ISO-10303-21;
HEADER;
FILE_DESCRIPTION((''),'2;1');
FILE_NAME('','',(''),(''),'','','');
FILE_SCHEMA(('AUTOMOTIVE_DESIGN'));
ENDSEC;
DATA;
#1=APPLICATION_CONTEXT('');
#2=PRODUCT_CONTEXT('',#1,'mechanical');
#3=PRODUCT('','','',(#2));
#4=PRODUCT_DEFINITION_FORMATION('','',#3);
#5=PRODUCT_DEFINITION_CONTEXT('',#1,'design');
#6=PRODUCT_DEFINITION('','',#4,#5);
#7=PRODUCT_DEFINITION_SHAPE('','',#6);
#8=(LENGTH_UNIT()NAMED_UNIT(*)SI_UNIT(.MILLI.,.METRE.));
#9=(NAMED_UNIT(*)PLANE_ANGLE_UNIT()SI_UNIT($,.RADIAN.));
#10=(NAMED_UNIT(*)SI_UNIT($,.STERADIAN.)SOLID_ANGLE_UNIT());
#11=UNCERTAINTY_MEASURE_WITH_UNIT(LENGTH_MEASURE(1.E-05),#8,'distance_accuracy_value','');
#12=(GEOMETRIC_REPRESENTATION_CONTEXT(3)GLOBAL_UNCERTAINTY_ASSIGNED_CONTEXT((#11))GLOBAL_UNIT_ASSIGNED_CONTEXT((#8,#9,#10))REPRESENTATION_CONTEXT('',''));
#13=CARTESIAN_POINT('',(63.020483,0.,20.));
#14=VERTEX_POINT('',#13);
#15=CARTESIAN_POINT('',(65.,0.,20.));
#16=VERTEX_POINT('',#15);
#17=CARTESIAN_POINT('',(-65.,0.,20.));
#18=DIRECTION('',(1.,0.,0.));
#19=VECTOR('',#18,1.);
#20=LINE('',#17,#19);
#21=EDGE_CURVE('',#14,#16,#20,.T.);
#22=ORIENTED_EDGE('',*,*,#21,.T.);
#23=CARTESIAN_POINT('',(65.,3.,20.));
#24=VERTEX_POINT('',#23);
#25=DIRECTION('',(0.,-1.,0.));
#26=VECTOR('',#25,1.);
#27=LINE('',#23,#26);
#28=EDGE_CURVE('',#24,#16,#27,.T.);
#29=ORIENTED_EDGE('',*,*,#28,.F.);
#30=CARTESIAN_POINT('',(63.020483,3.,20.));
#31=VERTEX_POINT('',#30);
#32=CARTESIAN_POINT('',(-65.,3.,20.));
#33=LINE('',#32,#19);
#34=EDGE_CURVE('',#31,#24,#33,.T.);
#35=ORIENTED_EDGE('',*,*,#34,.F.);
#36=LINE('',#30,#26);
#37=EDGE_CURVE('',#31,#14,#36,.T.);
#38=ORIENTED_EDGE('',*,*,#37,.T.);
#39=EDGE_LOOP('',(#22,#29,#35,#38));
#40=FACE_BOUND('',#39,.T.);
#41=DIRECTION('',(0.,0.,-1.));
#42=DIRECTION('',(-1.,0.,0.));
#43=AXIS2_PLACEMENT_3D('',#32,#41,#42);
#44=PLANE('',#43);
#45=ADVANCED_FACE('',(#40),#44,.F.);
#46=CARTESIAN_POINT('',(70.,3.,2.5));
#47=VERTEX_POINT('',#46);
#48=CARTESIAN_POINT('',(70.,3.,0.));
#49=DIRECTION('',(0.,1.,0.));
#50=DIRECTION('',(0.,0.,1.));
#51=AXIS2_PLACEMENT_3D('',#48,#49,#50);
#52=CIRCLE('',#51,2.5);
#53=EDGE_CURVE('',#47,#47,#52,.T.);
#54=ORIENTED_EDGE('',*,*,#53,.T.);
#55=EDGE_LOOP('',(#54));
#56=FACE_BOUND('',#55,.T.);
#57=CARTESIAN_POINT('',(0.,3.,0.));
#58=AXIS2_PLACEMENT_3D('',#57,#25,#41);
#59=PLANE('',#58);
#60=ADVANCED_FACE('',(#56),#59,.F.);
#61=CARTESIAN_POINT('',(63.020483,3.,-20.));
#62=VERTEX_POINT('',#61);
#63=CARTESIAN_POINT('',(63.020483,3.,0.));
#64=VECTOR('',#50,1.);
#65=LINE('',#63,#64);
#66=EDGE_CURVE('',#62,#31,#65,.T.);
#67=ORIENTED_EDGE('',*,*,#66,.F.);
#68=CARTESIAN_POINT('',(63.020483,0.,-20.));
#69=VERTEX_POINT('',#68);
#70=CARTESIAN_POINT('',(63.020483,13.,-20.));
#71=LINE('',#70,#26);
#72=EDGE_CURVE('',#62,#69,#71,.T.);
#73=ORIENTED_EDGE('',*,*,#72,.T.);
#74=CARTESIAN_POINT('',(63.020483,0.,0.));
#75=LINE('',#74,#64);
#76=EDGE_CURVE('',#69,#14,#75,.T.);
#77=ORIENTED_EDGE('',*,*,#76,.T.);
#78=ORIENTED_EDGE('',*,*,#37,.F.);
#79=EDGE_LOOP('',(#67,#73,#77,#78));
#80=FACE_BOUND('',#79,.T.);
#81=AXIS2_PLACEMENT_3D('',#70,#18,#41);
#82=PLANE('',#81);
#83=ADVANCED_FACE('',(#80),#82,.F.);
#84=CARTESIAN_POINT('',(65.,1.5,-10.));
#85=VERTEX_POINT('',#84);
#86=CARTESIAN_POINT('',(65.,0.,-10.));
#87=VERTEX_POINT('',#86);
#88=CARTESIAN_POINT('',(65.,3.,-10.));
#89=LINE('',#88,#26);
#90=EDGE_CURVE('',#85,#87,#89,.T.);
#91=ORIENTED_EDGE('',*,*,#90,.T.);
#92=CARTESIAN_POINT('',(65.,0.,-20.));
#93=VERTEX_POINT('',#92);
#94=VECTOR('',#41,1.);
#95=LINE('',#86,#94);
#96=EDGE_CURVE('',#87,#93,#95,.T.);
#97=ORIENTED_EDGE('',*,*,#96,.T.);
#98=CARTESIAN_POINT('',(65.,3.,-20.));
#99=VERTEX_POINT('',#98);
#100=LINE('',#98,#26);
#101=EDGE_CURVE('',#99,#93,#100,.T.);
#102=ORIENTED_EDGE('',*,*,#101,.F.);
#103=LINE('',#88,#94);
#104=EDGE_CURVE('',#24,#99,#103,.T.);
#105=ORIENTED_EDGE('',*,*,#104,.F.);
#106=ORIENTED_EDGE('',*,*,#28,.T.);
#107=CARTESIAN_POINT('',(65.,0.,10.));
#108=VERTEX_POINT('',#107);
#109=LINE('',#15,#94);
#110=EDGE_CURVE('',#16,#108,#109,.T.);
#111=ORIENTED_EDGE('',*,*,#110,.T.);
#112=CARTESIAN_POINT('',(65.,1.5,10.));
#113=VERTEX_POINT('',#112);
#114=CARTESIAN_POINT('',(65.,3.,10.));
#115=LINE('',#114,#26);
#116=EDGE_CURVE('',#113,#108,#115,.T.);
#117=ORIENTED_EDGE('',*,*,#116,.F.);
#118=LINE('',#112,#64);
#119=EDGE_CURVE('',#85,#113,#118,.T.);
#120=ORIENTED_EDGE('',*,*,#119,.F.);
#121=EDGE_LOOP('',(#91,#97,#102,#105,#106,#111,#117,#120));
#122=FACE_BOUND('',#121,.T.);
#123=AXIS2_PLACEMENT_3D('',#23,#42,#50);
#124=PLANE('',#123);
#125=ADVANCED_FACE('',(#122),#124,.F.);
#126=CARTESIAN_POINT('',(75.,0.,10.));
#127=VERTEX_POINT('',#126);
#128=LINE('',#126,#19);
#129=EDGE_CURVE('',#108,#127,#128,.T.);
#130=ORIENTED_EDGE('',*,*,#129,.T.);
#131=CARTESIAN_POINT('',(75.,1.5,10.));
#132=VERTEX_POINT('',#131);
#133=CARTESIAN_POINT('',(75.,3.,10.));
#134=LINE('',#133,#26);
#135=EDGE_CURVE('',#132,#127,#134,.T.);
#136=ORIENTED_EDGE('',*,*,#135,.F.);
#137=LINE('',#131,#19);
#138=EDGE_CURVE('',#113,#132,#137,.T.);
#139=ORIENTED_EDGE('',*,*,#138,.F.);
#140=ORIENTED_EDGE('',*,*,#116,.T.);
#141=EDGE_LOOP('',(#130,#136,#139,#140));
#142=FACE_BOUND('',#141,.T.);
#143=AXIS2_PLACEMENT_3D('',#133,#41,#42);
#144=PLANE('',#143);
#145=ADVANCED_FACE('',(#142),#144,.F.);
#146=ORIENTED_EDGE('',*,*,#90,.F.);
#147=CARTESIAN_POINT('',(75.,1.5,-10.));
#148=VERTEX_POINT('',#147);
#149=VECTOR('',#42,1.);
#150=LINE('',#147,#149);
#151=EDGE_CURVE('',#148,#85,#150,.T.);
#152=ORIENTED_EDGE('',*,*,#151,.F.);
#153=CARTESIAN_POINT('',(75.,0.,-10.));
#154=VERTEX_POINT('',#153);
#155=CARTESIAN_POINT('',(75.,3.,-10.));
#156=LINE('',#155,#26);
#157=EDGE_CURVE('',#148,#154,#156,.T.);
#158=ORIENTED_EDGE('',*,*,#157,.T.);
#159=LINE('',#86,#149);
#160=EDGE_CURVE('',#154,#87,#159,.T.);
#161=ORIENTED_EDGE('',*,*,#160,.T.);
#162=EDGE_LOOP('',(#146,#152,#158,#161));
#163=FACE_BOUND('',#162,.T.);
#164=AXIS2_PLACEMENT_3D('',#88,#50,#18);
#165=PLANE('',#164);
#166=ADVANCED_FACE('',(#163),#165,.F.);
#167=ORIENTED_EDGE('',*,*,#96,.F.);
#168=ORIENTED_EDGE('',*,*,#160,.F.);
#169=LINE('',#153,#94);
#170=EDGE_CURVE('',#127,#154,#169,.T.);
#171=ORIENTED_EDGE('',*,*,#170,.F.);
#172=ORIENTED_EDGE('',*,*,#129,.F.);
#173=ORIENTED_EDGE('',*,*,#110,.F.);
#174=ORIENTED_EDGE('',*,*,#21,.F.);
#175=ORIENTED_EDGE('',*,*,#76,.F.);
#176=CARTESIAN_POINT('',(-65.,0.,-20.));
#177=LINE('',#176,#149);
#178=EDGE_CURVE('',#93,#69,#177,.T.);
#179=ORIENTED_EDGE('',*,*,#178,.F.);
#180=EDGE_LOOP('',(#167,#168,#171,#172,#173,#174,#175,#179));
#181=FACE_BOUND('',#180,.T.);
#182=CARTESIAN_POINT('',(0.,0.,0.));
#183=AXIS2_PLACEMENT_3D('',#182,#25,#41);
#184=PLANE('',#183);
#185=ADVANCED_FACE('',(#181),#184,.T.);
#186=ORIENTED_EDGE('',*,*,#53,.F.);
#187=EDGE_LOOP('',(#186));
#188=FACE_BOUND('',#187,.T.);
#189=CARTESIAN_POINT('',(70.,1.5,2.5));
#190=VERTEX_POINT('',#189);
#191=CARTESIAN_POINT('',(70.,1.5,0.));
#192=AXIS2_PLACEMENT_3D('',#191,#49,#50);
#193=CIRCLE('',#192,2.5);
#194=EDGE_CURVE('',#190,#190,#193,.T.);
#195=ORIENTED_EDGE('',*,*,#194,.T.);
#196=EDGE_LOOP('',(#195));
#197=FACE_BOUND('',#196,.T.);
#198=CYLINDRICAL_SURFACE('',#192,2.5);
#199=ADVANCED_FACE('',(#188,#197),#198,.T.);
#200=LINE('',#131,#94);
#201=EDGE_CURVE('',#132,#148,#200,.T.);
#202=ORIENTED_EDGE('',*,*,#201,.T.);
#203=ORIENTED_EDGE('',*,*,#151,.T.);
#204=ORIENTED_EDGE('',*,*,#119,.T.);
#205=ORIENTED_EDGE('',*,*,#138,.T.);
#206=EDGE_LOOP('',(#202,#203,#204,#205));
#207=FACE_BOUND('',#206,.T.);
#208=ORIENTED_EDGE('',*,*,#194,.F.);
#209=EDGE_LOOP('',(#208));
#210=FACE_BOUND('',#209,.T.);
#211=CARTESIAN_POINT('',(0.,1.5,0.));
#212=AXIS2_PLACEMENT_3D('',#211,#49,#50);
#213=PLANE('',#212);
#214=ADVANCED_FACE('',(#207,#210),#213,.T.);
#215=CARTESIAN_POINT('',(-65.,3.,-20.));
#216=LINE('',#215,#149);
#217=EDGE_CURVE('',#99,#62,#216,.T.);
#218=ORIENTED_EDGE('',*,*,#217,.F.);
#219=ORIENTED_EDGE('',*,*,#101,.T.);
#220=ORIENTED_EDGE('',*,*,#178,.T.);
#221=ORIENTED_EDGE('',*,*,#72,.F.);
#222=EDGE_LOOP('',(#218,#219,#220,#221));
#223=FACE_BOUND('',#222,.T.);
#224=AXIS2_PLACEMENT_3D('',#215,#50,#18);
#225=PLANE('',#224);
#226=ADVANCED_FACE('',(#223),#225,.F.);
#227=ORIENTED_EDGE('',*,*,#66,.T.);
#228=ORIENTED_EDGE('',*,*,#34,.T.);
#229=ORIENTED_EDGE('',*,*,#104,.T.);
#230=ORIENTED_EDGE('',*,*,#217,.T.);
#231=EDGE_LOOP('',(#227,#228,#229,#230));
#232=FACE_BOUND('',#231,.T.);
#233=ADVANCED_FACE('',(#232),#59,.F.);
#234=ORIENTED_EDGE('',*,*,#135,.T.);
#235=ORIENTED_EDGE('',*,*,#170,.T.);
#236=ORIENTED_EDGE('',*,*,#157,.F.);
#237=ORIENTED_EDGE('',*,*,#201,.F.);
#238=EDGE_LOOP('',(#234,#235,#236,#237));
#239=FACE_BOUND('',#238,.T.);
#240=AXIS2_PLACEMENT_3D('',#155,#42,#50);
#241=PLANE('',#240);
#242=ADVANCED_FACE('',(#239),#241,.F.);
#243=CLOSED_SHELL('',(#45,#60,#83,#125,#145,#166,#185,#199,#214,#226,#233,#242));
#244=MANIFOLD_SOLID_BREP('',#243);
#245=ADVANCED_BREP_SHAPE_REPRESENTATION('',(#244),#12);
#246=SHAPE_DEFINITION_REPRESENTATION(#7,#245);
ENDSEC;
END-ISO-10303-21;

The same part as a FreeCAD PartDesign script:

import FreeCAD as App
import Part
import Sketcher

V = App.Vector
Q = App.Units.Quantity


def edges_at(feature, points):
    """Names of the edges that pass closest to the given points."""
    edges = feature.Shape.Edges
    near = lambda p: min(range(len(edges)), key=lambda i: edges[i].distToShape(Part.Vertex(*p))[0])
    return sorted({f"Edge{near(p) + 1}" for p in points})

doc = App.newDocument("Part")
body = doc.addObject("PartDesign::Body", "Body")

# Sketch on XZ plane
sketch1 = body.newObject("Sketcher::SketchObject", "Sketch")
sketch1.AttachmentSupport = (doc.getObject("XZ_Plane"), [""])
sketch1.MapMode = "FlatFace"
sketch1.addGeometry(Part.LineSegment(V(-65, 20, 0), V(65, 20, 0)), False)
sketch1.addGeometry(Part.LineSegment(V(65, 20, 0), V(65, 10, 0)), False)
sketch1.addGeometry(Part.LineSegment(V(65, 10, 0), V(75, 10, 0)), False)
sketch1.addGeometry(Part.LineSegment(V(75, 10, 0), V(75, -10, 0)), False)
sketch1.addGeometry(Part.LineSegment(V(75, -10, 0), V(65, -10, 0)), False)
sketch1.addGeometry(Part.LineSegment(V(65, -10, 0), V(65, -20, 0)), False)
sketch1.addGeometry(Part.LineSegment(V(65, -20, 0), V(-65, -20, 0)), False)
sketch1.addGeometry(Part.LineSegment(V(-65, -20, 0), V(-65, 20, 0)), False)
sketch1.addGeometry(Part.LineSegment(V(40, 12.5, 0), V(10, 12.5, 0)), False)
sketch1.addGeometry(Part.LineSegment(V(10, 12.5, 0), V(10, 9.5, 0)), False)
sketch1.addGeometry(Part.LineSegment(V(10, 9.5, 0), V(40, 9.5, 0)), False)
sketch1.addGeometry(Part.LineSegment(V(40, 9.5, 0), V(40, 12.5, 0)), False)
sketch1.addGeometry(Part.Circle(V(-50.1, 0, 0), V(0, 0, 1), 11), False)
sketch1.addGeometry(Part.Circle(V(-28.6, 0, 0), V(0, 0, 1), 2), False)
sketch1.addGeometry(Part.Circle(V(-13.6, 0, 0), V(0, 0, 1), 2), False)
sketch1.addGeometry(Part.Circle(V(50, 0, 0), V(0, 0, 1), 2), False)
sketch1.addGeometry(Part.LineSegment(V(40, -9.5, 0), V(10, -9.5, 0)), False)
sketch1.addGeometry(Part.LineSegment(V(10, -9.5, 0), V(10, -12.5, 0)), False)
sketch1.addGeometry(Part.LineSegment(V(10, -12.5, 0), V(40, -12.5, 0)), False)
sketch1.addGeometry(Part.LineSegment(V(40, -12.5, 0), V(40, -9.5, 0)), False)
sketch1.addConstraint(Sketcher.Constraint("Coincident", 0, 2, 1, 1))
sketch1.addConstraint(Sketcher.Constraint("Coincident", 1, 2, 2, 1))
sketch1.addConstraint(Sketcher.Constraint("Coincident", 2, 2, 3, 1))
sketch1.addConstraint(Sketcher.Constraint("Coincident", 3, 2, 4, 1))
sketch1.addConstraint(Sketcher.Constraint("Coincident", 4, 2, 5, 1))
sketch1.addConstraint(Sketcher.Constraint("Coincident", 5, 2, 6, 1))
sketch1.addConstraint(Sketcher.Constraint("Coincident", 6, 2, 7, 1))
sketch1.addConstraint(Sketcher.Constraint("Coincident", 7, 2, 0, 1))
sketch1.addConstraint(Sketcher.Constraint("Coincident", 8, 2, 9, 1))
sketch1.addConstraint(Sketcher.Constraint("Coincident", 9, 2, 10, 1))
sketch1.addConstraint(Sketcher.Constraint("Coincident", 10, 2, 11, 1))
sketch1.addConstraint(Sketcher.Constraint("Coincident", 11, 2, 8, 1))
sketch1.addConstraint(Sketcher.Constraint("Coincident", 16, 2, 17, 1))
sketch1.addConstraint(Sketcher.Constraint("Coincident", 17, 2, 18, 1))
sketch1.addConstraint(Sketcher.Constraint("Coincident", 18, 2, 19, 1))
sketch1.addConstraint(Sketcher.Constraint("Coincident", 19, 2, 16, 1))
sketch1.addConstraint(Sketcher.Constraint("Horizontal", 0))
sketch1.addConstraint(Sketcher.Constraint("Vertical", 1))
sketch1.addConstraint(Sketcher.Constraint("Horizontal", 2))
sketch1.addConstraint(Sketcher.Constraint("Vertical", 3))
sketch1.addConstraint(Sketcher.Constraint("Horizontal", 4))
sketch1.addConstraint(Sketcher.Constraint("Vertical", 5))
sketch1.addConstraint(Sketcher.Constraint("Horizontal", 6))
sketch1.addConstraint(Sketcher.Constraint("Vertical", 7))
sketch1.addConstraint(Sketcher.Constraint("Horizontal", 8))
sketch1.addConstraint(Sketcher.Constraint("Vertical", 9))
sketch1.addConstraint(Sketcher.Constraint("Horizontal", 10))
sketch1.addConstraint(Sketcher.Constraint("Vertical", 11))
sketch1.addConstraint(Sketcher.Constraint("Horizontal", 16))
sketch1.addConstraint(Sketcher.Constraint("Vertical", 17))
sketch1.addConstraint(Sketcher.Constraint("Horizontal", 18))
sketch1.addConstraint(Sketcher.Constraint("Vertical", 19))
sketch1.addConstraint(Sketcher.Constraint("Equal", 13, 14))
sketch1.addConstraint(Sketcher.Constraint("Equal", 14, 15))
sketch1.addConstraint(Sketcher.Constraint("Symmetric", 0, 2, 6, 2, -1, 1))
sketch1.addConstraint(Sketcher.Constraint("Symmetric", 1, 2, 4, 2, -1))
sketch1.addConstraint(Sketcher.Constraint("Symmetric", 9, 2, 16, 2, -1))
sketch1.addConstraint(Sketcher.Constraint("Symmetric", 11, 2, 18, 2, -1))
sketch1.addConstraint(Sketcher.Constraint("PointOnObject", 12, 3, -1))
sketch1.addConstraint(Sketcher.Constraint("PointOnObject", 13, 3, -1))
sketch1.addConstraint(Sketcher.Constraint("PointOnObject", 14, 3, -1))
sketch1.addConstraint(Sketcher.Constraint("PointOnObject", 15, 3, -1))
sketch1.addConstraint(Sketcher.Constraint("Equal", 4, 1))
sketch1.addConstraint(Sketcher.Constraint("Diameter", 12, Q("22 mm")))
sketch1.addConstraint(Sketcher.Constraint("Diameter", 13, Q("4 mm")))
sketch1.addConstraint(Sketcher.Constraint("DistanceX", 0, 1, 0, 2, Q("130 mm")))
sketch1.addConstraint(Sketcher.Constraint("DistanceX", 2, 1, 2, 2, Q("10 mm")))
sketch1.addConstraint(Sketcher.Constraint("DistanceX", 8, 2, 8, 1, Q("30 mm")))
sketch1.addConstraint(Sketcher.Constraint("DistanceY", 3, 2, 3, 1, Q("20 mm")))
sketch1.addConstraint(Sketcher.Constraint("DistanceY", 9, 2, 9, 1, Q("3 mm")))
sketch1.addConstraint(Sketcher.Constraint("DistanceX", -1, 1, 15, 3, Q("50 mm")))
sketch1.addConstraint(Sketcher.Constraint("DistanceX", -1, 1, 8, 2, Q("10 mm")))
sketch1.addConstraint(Sketcher.Constraint("DistanceX", 13, 3, 14, 3, Q("15 mm")))
sketch1.addConstraint(Sketcher.Constraint("DistanceY", 16, 2, 9, 2, Q("19 mm")))
sketch1.addConstraint(Sketcher.Constraint("DistanceX", 12, 3, -1, 1, Q("50.129943 mm")))
sketch1.addConstraint(Sketcher.Constraint("DistanceX", 13, 3, -1, 1, Q("28.595128 mm")))
pad1 = body.newObject("PartDesign::Pad", "Pad")
pad1.Profile = sketch1
pad1.Length = 3
pad1.Reversed = True

# Sketch on XZ plane
sketch2 = body.newObject("Sketcher::SketchObject", "Sketch001")
sketch2.AttachmentSupport = (doc.getObject("XZ_Plane"), [""])
sketch2.MapMode = "FlatFace"
sketch2.AttachmentOffset = App.Placement(V(0, 0, -3), App.Rotation())
sketch2.addGeometry(Part.Circle(V(-50, 0, 0), V(0, 0, 1), 13), False)
sketch2.addGeometry(Part.Circle(V(-50, 0, 0), V(0, 0, 1), 11), False)
sketch2.addConstraint(Sketcher.Constraint("Coincident", 1, 3, 0, 3))
sketch2.addConstraint(Sketcher.Constraint("PointOnObject", 0, 3, -1))
sketch2.addConstraint(Sketcher.Constraint("Diameter", 0, Q("26 mm")))
sketch2.addConstraint(Sketcher.Constraint("Diameter", 1, Q("22 mm")))
sketch2.addConstraint(Sketcher.Constraint("DistanceX", 0, 3, -1, 1, Q("50.129943 mm")))
pad2 = body.newObject("PartDesign::Pad", "Pad001")
pad2.Profile = sketch2
pad2.Length = 4
pad2.Reversed = True

# Sketch on XZ plane
sketch3 = body.newObject("Sketcher::SketchObject", "Sketch002")
sketch3.AttachmentSupport = (doc.getObject("XZ_Plane"), [""])
sketch3.MapMode = "FlatFace"
sketch3.AttachmentOffset = App.Placement(V(0, 0, -7), App.Rotation())
sketch3.addGeometry(Part.Circle(V(-50, 0, 0), V(0, 0, 1), 13), False)
sketch3.addGeometry(Part.Circle(V(-50, 0, 0), V(0, 0, 1), 9), False)
sketch3.addConstraint(Sketcher.Constraint("Coincident", 1, 3, 0, 3))
sketch3.addConstraint(Sketcher.Constraint("PointOnObject", 0, 3, -1))
sketch3.addConstraint(Sketcher.Constraint("Diameter", 0, Q("26 mm")))
sketch3.addConstraint(Sketcher.Constraint("Diameter", 1, Q("18 mm")))
sketch3.addConstraint(Sketcher.Constraint("DistanceX", 0, 3, -1, 1, Q("50.129943 mm")))
pad3 = body.newObject("PartDesign::Pad", "Pad002")
pad3.Profile = sketch3
pad3.Length = 2
pad3.Reversed = True
doc.recompute()

chamfer = body.newObject("PartDesign::Chamfer", "Chamfer")
chamfer.Base = (pad3, edges_at(pad3, [(-50.13, 9, 13)]))
chamfer.Size = 2
doc.recompute()

chamfer2 = body.newObject("PartDesign::Chamfer", "Chamfer001")
chamfer2.Base = (chamfer, edges_at(chamfer, [(-65, 1.5, 20), (-65, 1.5, -20)]))
chamfer2.Size = 10

# Sketch on XZ plane
sketch4 = body.newObject("Sketcher::SketchObject", "Sketch003")
sketch4.AttachmentSupport = (doc.getObject("XZ_Plane"), [""])
sketch4.MapMode = "FlatFace"
sketch4.AttachmentOffset = App.Placement(V(0, 0, -3), App.Rotation())
sketch4.addGeometry(Part.LineSegment(V(65, -10, 0), V(65, 10, 0)), False)
sketch4.addGeometry(Part.LineSegment(V(65, 10, 0), V(75, 10, 0)), False)
sketch4.addGeometry(Part.LineSegment(V(75, 10, 0), V(75, -10, 0)), False)
sketch4.addGeometry(Part.LineSegment(V(75, -10, 0), V(65, -10, 0)), False)
sketch4.addGeometry(Part.Circle(V(70, 0, 0), V(0, 0, 1), 2.5), False)
sketch4.addConstraint(Sketcher.Constraint("Coincident", 0, 2, 1, 1))
sketch4.addConstraint(Sketcher.Constraint("Coincident", 1, 2, 2, 1))
sketch4.addConstraint(Sketcher.Constraint("Coincident", 2, 2, 3, 1))
sketch4.addConstraint(Sketcher.Constraint("Coincident", 3, 2, 0, 1))
sketch4.addConstraint(Sketcher.Constraint("Vertical", 0))
sketch4.addConstraint(Sketcher.Constraint("Horizontal", 1))
sketch4.addConstraint(Sketcher.Constraint("Vertical", 2))
sketch4.addConstraint(Sketcher.Constraint("Horizontal", 3))
sketch4.addConstraint(Sketcher.Constraint("PointOnObject", 4, 3, -1))
sketch4.addConstraint(Sketcher.Constraint("Diameter", 4, Q("5 mm")))
sketch4.addConstraint(Sketcher.Constraint("DistanceX", 1, 1, 1, 2, Q("10 mm")))
sketch4.addConstraint(Sketcher.Constraint("DistanceY", 0, 1, 0, 2, Q("20 mm")))
sketch4.addConstraint(Sketcher.Constraint("DistanceX", -1, 1, 4, 3, Q("70 mm")))
sketch4.addConstraint(Sketcher.Constraint("DistanceX", -1, 1, 0, 2, Q("65 mm")))
sketch4.addConstraint(Sketcher.Constraint("DistanceY", -1, 1, 0, 2, Q("10 mm")))
pocket1 = body.newObject("PartDesign::Pocket", "Pocket")
pocket1.Profile = sketch4
pocket1.Length = 1.5
pocket1.Reversed = True

# Sketch on XZ plane
sketch5 = body.newObject("Sketcher::SketchObject", "Sketch004")
sketch5.AttachmentSupport = (doc.getObject("XZ_Plane"), [""])
sketch5.MapMode = "FlatFace"
sketch5.AttachmentOffset = App.Placement(V(0, 0, -3), App.Rotation())
sketch5.addGeometry(Part.LineSegment(V(-81, -36, 0), V(-81, 36, 0)), False)
sketch5.addGeometry(Part.LineSegment(V(-81, 36, 0), V(91, 36, 0)), False)
sketch5.addGeometry(Part.LineSegment(V(91, 36, 0), V(91, -36, 0)), False)
sketch5.addGeometry(Part.LineSegment(V(91, -36, 0), V(-81, -36, 0)), False)
sketch5.addGeometry(Part.LineSegment(V(76, 22, 0), V(63, 22, 0)), False)
sketch5.addGeometry(Part.LineSegment(V(63, 22, 0), V(63, -20, 0)), False)
sketch5.addGeometry(Part.LineSegment(V(63, -20, 0), V(76, -20, 0)), False)
sketch5.addGeometry(Part.LineSegment(V(76, -20, 0), V(76, 22, 0)), False)
sketch5.addConstraint(Sketcher.Constraint("Coincident", 0, 2, 1, 1))
sketch5.addConstraint(Sketcher.Constraint("Coincident", 1, 2, 2, 1))
sketch5.addConstraint(Sketcher.Constraint("Coincident", 2, 2, 3, 1))
sketch5.addConstraint(Sketcher.Constraint("Coincident", 3, 2, 0, 1))
sketch5.addConstraint(Sketcher.Constraint("Coincident", 4, 2, 5, 1))
sketch5.addConstraint(Sketcher.Constraint("Coincident", 5, 2, 6, 1))
sketch5.addConstraint(Sketcher.Constraint("Coincident", 6, 2, 7, 1))
sketch5.addConstraint(Sketcher.Constraint("Coincident", 7, 2, 4, 1))
sketch5.addConstraint(Sketcher.Constraint("Vertical", 0))
sketch5.addConstraint(Sketcher.Constraint("Horizontal", 1))
sketch5.addConstraint(Sketcher.Constraint("Vertical", 2))
sketch5.addConstraint(Sketcher.Constraint("Horizontal", 3))
sketch5.addConstraint(Sketcher.Constraint("Horizontal", 4))
sketch5.addConstraint(Sketcher.Constraint("Vertical", 5))
sketch5.addConstraint(Sketcher.Constraint("Horizontal", 6))
sketch5.addConstraint(Sketcher.Constraint("Vertical", 7))
sketch5.addConstraint(Sketcher.Constraint("DistanceY", 5, 2, -1, 1, Q("20 mm")))
sketch5.addConstraint(Sketcher.Constraint("DistanceX", 1, 1, 1, 2, Q("171.176 mm")))
sketch5.addConstraint(Sketcher.Constraint("DistanceY", 0, 1, 0, 2, Q("71.176 mm")))
sketch5.addConstraint(Sketcher.Constraint("DistanceX", 0, 2, -1, 1, Q("80.588 mm")))
sketch5.addConstraint(Sketcher.Constraint("DistanceY", -1, 1, 0, 2, Q("35.588 mm")))
sketch5.addConstraint(Sketcher.Constraint("DistanceX", 4, 2, 4, 1, Q("13.47866 mm")))
sketch5.addConstraint(Sketcher.Constraint("DistanceY", 5, 2, 5, 1, Q("41.596343 mm")))
sketch5.addConstraint(Sketcher.Constraint("DistanceX", -1, 1, 4, 2, Q("63.020483 mm")))
pocket2 = body.newObject("PartDesign::Pocket", "Pocket001")
pocket2.Profile = sketch5
pocket2.Type = "ThroughAll"
pocket2.Midplane = True

doc.recompute()
